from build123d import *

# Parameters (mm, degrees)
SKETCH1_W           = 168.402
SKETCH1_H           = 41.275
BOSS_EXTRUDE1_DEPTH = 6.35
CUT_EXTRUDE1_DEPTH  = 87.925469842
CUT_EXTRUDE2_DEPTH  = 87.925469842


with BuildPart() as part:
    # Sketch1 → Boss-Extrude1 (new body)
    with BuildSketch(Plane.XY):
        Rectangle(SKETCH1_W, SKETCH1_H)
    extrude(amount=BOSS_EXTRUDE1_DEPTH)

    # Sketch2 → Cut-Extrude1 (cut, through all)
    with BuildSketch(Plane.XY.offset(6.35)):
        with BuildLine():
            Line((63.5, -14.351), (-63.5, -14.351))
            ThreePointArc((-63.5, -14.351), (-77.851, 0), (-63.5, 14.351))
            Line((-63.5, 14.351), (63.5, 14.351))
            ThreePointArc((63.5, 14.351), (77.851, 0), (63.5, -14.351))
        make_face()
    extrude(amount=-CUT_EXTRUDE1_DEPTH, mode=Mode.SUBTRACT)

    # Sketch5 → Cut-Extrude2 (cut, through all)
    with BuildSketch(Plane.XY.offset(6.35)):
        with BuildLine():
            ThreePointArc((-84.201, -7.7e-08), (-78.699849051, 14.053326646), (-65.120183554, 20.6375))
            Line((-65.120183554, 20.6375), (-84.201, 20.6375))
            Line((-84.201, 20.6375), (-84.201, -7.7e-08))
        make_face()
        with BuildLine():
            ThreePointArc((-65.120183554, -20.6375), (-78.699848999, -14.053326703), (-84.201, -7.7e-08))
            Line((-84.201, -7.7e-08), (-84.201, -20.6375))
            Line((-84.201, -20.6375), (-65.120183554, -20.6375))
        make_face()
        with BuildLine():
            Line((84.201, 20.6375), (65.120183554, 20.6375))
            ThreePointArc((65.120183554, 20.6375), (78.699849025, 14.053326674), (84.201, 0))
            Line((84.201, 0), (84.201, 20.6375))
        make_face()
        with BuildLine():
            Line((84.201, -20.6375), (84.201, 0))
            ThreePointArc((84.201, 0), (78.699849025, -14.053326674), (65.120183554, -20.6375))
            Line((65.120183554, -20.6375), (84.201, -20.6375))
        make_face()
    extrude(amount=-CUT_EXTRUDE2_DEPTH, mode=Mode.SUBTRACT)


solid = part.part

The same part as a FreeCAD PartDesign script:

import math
import FreeCAD as App
import Part
import Sketcher

V = App.Vector
Q = App.Units.Quantity


def add_polygon(sketch, points):
    """Adds a closed chain of lines whose ends are joined by coincident constraints."""
    first, n = sketch.GeometryCount, len(points)
    for a, b in zip(points, points[1:] + points[:1]):
        sketch.addGeometry(Part.LineSegment(App.Vector(*a, 0), App.Vector(*b, 0)), False)
    for i in range(n):
        sketch.addConstraint(Sketcher.Constraint("Coincident", first + i, 2, first + (i + 1) % n, 1))

doc = App.newDocument("Part")
params = doc.addObject("Spreadsheet::Sheet", "Params")
for row, (alias, value) in enumerate([
    ("sketch1_width", "6.63 in"),
    ("sketch1_height", "1.625 in"),
    ("pad1_length", "0.25 in"),
    ("sketch2_width", "5 in"),
    ("sketch2_radius", "0.565 in"),
    ("sketch3_radius", "0.815 in"),
    ("sketch3_height", "0.8125 in"),
], start=1):
    params.set(f"A{row}", alias)
    params.set(f"B{row}", "=" + value)
    params.setAlias(f"B{row}", alias)

body = doc.addObject("PartDesign::Body", "Body")

# Sketch on XY plane
sketch1 = doc.addObject("Sketcher::SketchObject", "Sketch")
body.addObject(sketch1)
sketch1.AttachmentSupport = (doc.XY_Plane, [""])
sketch1.MapMode = "FlatFace"
add_polygon(sketch1, [(-84, 21), (-84, -21), (84, -21), (84, 21)])  # lines 0-3
sketch1.addConstraint([
    Sketcher.Constraint("Vertical", 0),
    Sketcher.Constraint("Horizontal", 1),
    Sketcher.Constraint("Vertical", 2),
    Sketcher.Constraint("Horizontal", 3),
    Sketcher.Constraint("Symmetric", 0, 2, 2, 2, -1, 1),
    Sketcher.Constraint("DistanceX", 1, 1, 1, 2, Q("6.63 in")),
    Sketcher.Constraint("DistanceY", 0, 2, 0, 1, Q("1.625 in")),
])
sketch1.setExpression("Constraints[9]", "Params.sketch1_width")
sketch1.setExpression("Constraints[10]", "Params.sketch1_height")
pad1 = doc.addObject("PartDesign::Pad", "Pad")
body.addObject(pad1)
pad1.Profile = sketch1
pad1.setExpression("Length", "Params.pad1_length")

# Sketch on XY plane
sketch2 = doc.addObject("Sketcher::SketchObject", "Sketch001")
body.addObject(sketch2)
sketch2.AttachmentSupport = (doc.XY_Plane, [""])
sketch2.MapMode = "FlatFace"
sketch2.AttachmentOffset = App.Placement(V(0, 0, 0.25 * 25.4), App.Rotation())
sketch2.addGeometry([
    Part.LineSegment(V(-64, -14, 0), V(64, -14, 0)),
    Part.ArcOfCircle(Part.Circle(V(64, 0, 0), V(0, 0, 1), 14), math.radians(-90), math.radians(90)),
    Part.LineSegment(V(64, 14, 0), V(-64, 14, 0)),
    Part.ArcOfCircle(Part.Circle(V(-64, 0, 0), V(0, 0, 1), 14), math.radians(90), math.radians(270)),
], False)
sketch2.addConstraint([
    Sketcher.Constraint("Tangent", 0, 2, 1, 1),
    Sketcher.Constraint("Tangent", 1, 2, 2, 1),
    Sketcher.Constraint("Tangent", 2, 2, 3, 1),
    Sketcher.Constraint("Tangent", 3, 2, 0, 1),
    Sketcher.Constraint("Horizontal", 0),
    Sketcher.Constraint("Horizontal", 2),
    Sketcher.Constraint("Symmetric", 1, 3, 3, 3, -1, 1),
    Sketcher.Constraint("DistanceX", 0, 1, 0, 2, Q("5 in")),
    Sketcher.Constraint("Radius", 1, Q("0.565 in")),
])
sketch2.setExpression("Constraints[7]", "Params.sketch2_width")
sketch2.setExpression("Constraints[8]", "Params.sketch2_radius")
pocket1 = doc.addObject("PartDesign::Pocket", "Pocket")
body.addObject(pocket1)
pocket1.Profile = sketch2
pocket1.Type = "ThroughAll"

# Sketch on XY plane
sketch3 = doc.addObject("Sketcher::SketchObject", "Sketch002")
body.addObject(sketch3)
sketch3.AttachmentSupport = (doc.XY_Plane, [""])
sketch3.MapMode = "FlatFace"
sketch3.AttachmentOffset = App.Placement(V(0, 0, 0.25 * 25.4), App.Rotation())
sketch3.addGeometry([
    Part.ArcOfCircle(Part.Circle(V(-64, 0, 0), V(0, 0, 1), 21), math.radians(94), math.radians(180)),  # 0
    Part.LineSegment(V(-65, 21, 0), V(-84, 21, 0)),  # 1
    Part.LineSegment(V(-84, 21, 0), V(-84, 0, 0)),  # 2
    Part.ArcOfCircle(Part.Circle(V(-64, 0, 0), V(0, 0, 1), 21), math.radians(-180), math.radians(-94)),  # 3
    Part.LineSegment(V(-84, 0, 0), V(-84, -21, 0)),  # 4
    Part.LineSegment(V(-84, -21, 0), V(-65, -21, 0)),  # 5
    Part.LineSegment(V(84, 21, 0), V(65, 21, 0)),  # 6
    Part.ArcOfCircle(Part.Circle(V(63, 0, 0), V(0, 0, 1), 21), math.radians(0), math.radians(86)),  # 7
    Part.LineSegment(V(84, 0, 0), V(84, 21, 0)),  # 8
    Part.LineSegment(V(84, -21, 0), V(84, 0, 0)),  # 9
    Part.ArcOfCircle(Part.Circle(V(63, 0, 0), V(0, 0, 1), 21), math.radians(-86), math.radians(0)),  # 10
    Part.LineSegment(V(65, -21, 0), V(84, -21, 0)),  # 11
], False)
sketch3.addConstraint([
    Sketcher.Constraint("Coincident", 0, 1, 1, 1),
    Sketcher.Constraint("Coincident", 1, 2, 2, 1),
    Sketcher.Constraint("Tangent", 2, 2, 0, 2),
    Sketcher.Constraint("Tangent", 3, 1, 4, 1),
    Sketcher.Constraint("Coincident", 4, 2, 5, 1),
    Sketcher.Constraint("Coincident", 5, 2, 3, 2),
    Sketcher.Constraint("Coincident", 6, 2, 7, 2),
    Sketcher.Constraint("Tangent", 7, 1, 8, 1),
    Sketcher.Constraint("Coincident", 8, 2, 6, 1),
    Sketcher.Constraint("Tangent", 9, 2, 10, 2),
    Sketcher.Constraint("Coincident", 10, 1, 11, 1),
    Sketcher.Constraint("Coincident", 11, 2, 9, 1),
    Sketcher.Constraint("Horizontal", 1),
    Sketcher.Constraint("Vertical", 2),
    Sketcher.Constraint("Vertical", 4),
    Sketcher.Constraint("Horizontal", 5),
    Sketcher.Constraint("Horizontal", 6),
    Sketcher.Constraint("Vertical", 8),
    Sketcher.Constraint("Vertical", 9),
    Sketcher.Constraint("Horizontal", 11),
    Sketcher.Constraint("Coincident", 3, 3, 0, 3),
    Sketcher.Constraint("Coincident", 10, 3, 7, 3),
    Sketcher.Constraint("Equal", 0, 3),
    Sketcher.Constraint("Equal", 3, 7),
    Sketcher.Constraint("Equal", 7, 10),
    Sketcher.Constraint("Symmetric", 0, 3, 7, 3, -1, 1),
    Sketcher.Constraint("Symmetric", 0, 1, 6, 2, -2),
    Sketcher.Constraint("Horizontal", 5, 2, 10, 1),
    Sketcher.Constraint("Vertical", 0, 1, 5, 2),
    Sketcher.Constraint("Radius", 0, Q("0.815 in")),
    Sketcher.Constraint("DistanceX", 0, 3, 7, 3, Q("5 in")),
    Sketcher.Constraint("DistanceY", 2, 2, 2, 1, Q("0.8125 in")),
])
sketch3.setExpression("Constraints[29]", "Params.sketch3_radius")
sketch3.setExpression("Constraints[31]", "Params.sketch3_height")
pocket2 = doc.addObject("PartDesign::Pocket", "Pocket001")
body.addObject(pocket2)
pocket2.Profile = sketch3
pocket2.Type = "ThroughAll"

doc.recompute()
